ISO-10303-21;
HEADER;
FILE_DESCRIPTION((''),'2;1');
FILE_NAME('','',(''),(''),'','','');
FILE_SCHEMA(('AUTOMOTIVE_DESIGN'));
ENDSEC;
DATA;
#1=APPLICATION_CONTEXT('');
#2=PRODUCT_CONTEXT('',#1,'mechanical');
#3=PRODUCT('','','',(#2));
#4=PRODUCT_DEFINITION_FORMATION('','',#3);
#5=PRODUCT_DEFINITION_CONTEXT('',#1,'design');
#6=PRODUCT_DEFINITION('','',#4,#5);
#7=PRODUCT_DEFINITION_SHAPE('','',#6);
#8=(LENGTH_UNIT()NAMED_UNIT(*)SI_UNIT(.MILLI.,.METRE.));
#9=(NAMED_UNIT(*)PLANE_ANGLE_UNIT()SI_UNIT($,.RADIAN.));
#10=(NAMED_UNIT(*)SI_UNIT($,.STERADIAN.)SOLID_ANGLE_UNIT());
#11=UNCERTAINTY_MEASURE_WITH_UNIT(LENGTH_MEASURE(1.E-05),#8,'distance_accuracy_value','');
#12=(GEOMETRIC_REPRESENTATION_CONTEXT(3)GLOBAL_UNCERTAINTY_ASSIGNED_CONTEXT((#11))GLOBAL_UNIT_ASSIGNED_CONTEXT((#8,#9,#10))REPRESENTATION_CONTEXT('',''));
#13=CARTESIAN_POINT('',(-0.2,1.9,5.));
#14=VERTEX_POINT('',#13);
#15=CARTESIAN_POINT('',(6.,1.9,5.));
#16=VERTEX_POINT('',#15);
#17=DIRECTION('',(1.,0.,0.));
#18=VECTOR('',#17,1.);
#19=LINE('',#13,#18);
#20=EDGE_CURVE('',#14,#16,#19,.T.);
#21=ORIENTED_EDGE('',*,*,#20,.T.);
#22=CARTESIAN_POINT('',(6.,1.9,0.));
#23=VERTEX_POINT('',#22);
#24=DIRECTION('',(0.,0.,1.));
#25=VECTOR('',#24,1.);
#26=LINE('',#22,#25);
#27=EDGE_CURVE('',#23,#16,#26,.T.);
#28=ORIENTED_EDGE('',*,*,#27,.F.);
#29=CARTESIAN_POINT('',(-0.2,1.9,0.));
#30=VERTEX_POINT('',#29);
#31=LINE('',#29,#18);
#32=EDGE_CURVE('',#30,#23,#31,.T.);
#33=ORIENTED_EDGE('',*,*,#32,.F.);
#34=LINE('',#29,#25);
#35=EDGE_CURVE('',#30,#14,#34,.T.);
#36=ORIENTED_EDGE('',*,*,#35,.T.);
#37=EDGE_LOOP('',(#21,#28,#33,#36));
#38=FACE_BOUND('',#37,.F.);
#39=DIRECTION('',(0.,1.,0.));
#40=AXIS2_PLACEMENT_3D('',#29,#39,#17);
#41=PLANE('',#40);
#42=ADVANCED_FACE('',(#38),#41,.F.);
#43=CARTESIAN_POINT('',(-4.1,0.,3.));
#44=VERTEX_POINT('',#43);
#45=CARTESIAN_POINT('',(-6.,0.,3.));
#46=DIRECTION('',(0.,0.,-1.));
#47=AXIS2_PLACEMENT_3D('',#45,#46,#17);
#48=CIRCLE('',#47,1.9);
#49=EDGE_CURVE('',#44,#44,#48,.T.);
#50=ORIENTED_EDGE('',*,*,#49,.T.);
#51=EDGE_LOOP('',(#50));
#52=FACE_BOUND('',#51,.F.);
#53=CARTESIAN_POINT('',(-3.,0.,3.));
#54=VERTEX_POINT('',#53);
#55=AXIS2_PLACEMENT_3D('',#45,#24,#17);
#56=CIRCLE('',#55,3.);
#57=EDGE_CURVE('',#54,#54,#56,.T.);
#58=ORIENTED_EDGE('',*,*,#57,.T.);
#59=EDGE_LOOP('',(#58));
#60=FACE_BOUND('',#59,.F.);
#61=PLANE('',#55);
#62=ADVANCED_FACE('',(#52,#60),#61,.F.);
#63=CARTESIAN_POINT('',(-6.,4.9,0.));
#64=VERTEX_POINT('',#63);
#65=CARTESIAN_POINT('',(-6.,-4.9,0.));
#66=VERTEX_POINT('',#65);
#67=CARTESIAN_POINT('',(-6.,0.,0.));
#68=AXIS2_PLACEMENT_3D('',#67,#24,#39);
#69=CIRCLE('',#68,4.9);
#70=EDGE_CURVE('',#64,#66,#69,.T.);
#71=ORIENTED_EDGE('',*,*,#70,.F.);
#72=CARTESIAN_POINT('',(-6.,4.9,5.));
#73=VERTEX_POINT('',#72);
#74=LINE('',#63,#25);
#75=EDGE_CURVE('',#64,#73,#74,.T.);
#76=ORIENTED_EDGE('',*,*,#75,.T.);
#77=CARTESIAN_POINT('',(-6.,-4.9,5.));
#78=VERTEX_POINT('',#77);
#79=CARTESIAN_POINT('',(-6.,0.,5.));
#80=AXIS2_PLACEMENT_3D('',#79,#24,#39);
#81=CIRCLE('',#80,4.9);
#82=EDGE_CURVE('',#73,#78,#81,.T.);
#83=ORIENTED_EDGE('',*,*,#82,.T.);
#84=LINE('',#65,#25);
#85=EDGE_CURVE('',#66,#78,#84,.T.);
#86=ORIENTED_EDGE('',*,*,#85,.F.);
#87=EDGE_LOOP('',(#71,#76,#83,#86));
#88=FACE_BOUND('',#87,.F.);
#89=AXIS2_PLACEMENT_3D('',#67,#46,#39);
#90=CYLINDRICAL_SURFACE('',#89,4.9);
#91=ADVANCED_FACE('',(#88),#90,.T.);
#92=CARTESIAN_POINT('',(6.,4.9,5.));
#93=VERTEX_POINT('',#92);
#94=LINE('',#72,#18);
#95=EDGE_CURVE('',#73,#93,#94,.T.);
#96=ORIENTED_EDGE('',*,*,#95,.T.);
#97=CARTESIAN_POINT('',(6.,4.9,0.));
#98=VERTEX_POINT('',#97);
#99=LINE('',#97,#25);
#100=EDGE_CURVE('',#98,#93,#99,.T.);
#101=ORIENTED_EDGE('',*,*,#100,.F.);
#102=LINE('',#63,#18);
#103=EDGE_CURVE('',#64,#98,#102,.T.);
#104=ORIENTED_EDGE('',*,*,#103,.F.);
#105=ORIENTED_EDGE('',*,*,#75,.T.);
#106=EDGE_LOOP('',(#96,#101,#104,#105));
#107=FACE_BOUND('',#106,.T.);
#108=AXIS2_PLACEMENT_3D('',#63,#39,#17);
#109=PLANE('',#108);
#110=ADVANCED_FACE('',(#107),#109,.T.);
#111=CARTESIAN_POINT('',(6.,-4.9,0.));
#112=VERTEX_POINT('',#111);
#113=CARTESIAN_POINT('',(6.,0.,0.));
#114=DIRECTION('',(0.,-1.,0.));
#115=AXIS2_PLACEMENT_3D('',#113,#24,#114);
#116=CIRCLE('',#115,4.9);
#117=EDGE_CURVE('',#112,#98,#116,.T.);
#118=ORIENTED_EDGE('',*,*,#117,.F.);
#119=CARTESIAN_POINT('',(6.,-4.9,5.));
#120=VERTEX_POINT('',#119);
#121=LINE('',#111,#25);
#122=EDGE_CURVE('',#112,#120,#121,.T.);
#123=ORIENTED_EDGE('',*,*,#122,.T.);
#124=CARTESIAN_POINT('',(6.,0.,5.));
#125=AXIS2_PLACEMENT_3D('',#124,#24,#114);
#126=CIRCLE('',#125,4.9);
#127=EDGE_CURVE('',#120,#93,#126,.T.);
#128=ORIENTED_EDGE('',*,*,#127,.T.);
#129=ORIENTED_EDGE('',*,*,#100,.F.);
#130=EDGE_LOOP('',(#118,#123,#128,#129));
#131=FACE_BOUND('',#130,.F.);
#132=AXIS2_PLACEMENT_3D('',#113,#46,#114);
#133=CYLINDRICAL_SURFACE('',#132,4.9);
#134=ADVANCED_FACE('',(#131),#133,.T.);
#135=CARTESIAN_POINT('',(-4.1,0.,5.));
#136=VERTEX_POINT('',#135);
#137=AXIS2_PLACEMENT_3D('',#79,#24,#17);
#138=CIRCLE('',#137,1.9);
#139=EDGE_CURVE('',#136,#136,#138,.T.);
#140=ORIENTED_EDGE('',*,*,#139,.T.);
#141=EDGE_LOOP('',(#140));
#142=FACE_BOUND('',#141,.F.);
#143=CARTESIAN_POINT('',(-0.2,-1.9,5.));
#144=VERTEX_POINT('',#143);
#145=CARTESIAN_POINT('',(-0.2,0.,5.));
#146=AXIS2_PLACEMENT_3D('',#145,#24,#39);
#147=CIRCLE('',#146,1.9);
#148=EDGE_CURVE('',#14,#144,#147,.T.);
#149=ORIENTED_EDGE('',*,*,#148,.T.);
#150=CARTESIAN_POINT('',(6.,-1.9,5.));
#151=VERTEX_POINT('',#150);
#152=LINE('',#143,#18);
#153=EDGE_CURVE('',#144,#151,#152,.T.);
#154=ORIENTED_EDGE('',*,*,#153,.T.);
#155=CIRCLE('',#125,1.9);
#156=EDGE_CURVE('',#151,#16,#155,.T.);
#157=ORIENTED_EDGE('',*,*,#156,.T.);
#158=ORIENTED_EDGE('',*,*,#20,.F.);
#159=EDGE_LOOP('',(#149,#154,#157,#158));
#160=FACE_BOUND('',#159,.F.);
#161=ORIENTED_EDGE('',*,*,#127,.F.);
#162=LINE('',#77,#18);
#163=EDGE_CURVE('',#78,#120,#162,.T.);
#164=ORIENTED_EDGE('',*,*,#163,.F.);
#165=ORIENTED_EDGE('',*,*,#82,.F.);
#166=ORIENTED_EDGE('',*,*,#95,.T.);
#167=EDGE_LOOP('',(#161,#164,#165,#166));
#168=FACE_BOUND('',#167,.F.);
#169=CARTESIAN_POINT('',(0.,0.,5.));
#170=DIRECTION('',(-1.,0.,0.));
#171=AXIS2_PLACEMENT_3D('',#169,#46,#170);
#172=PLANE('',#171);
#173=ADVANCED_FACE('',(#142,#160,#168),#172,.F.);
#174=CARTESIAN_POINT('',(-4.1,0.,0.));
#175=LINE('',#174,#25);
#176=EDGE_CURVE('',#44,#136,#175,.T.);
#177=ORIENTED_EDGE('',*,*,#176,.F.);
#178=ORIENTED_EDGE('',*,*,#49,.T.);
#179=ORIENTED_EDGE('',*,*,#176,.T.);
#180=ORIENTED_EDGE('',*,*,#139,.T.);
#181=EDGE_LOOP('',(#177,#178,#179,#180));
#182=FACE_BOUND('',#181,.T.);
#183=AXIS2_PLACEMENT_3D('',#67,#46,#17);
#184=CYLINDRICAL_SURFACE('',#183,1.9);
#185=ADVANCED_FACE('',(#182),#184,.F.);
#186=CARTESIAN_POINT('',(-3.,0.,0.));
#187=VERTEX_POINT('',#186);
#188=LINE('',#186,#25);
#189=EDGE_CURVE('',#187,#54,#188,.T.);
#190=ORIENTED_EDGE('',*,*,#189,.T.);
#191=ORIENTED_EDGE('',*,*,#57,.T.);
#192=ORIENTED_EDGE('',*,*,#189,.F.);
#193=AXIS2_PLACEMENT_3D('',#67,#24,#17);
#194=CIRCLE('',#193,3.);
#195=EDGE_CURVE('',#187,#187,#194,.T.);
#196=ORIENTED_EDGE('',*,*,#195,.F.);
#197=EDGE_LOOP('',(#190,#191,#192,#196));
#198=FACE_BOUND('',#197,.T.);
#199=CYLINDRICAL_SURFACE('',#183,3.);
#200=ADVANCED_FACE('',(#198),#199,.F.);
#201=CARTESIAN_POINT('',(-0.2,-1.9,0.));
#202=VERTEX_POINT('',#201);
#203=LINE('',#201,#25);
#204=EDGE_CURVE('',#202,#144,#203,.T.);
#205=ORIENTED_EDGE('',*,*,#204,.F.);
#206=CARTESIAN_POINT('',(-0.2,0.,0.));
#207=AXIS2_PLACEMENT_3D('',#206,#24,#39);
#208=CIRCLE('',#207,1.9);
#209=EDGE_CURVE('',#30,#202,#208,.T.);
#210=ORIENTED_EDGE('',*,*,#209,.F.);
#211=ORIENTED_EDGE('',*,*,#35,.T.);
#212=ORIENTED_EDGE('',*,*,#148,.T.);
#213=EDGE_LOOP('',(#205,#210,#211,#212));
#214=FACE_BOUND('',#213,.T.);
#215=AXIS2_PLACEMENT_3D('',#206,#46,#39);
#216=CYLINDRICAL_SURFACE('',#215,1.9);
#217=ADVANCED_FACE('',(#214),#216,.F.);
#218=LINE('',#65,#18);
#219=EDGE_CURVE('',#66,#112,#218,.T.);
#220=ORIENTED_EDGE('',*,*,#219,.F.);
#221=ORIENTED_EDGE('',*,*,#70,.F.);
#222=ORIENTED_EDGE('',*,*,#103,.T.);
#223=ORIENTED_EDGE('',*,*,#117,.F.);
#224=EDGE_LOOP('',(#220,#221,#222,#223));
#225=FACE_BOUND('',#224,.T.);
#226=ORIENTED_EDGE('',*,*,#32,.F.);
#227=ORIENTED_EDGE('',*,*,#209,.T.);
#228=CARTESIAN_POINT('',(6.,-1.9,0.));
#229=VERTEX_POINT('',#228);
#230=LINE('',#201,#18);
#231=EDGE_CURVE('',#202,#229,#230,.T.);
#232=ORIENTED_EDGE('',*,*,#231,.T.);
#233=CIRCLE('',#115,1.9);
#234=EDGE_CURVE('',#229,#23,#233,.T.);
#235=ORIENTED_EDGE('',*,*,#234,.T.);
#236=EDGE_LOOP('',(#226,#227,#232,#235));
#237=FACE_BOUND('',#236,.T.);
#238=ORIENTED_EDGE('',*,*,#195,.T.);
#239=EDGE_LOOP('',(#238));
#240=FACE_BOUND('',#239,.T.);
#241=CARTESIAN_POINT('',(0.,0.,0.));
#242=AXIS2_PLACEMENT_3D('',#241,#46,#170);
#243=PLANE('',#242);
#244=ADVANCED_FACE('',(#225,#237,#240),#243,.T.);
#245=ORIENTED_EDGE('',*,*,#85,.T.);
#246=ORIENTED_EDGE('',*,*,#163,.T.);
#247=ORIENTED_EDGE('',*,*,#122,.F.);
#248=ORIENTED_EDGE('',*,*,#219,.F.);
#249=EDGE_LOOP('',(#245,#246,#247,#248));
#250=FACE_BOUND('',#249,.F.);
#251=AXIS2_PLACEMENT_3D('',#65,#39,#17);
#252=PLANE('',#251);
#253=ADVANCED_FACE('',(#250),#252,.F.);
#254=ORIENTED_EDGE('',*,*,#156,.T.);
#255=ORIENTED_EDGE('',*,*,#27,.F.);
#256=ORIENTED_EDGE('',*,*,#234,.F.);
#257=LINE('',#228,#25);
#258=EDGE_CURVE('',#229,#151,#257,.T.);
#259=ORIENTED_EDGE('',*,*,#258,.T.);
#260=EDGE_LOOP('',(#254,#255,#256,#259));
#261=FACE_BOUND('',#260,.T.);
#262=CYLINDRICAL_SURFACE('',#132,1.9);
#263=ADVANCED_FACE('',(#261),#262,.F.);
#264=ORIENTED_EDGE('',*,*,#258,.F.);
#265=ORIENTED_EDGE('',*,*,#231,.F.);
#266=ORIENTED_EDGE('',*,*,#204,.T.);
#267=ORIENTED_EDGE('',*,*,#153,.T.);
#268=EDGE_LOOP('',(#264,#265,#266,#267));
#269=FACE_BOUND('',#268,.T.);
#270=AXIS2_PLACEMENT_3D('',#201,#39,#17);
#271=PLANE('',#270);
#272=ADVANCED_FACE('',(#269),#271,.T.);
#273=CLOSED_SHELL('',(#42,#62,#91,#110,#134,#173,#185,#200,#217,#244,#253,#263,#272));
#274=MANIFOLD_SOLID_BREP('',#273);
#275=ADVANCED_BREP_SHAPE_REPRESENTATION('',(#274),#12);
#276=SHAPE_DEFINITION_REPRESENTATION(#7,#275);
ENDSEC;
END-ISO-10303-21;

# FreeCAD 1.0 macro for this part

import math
import FreeCAD as App
import Part
import Sketcher
from FreeCAD import Vector
Q = App.Units.Quantity

doc = App.newDocument("Part")
body = doc.addObject("PartDesign::Body", "Body")

# Sketch on XY plane
sketch1 = doc.addObject("Sketcher::SketchObject", "Sketch")
body.addObject(sketch1)
sketch1.AttachmentSupport = (doc.XY_Plane, [""])
sketch1.MapMode = "FlatFace"
sketch1.addGeometry(Part.Circle(Vector(-6, 0, 0), Vector(0, 0, 1), 3), False)
sketch1.addConstraint([
    Sketcher.Constraint("PointOnObject", 0, 3, -1),
    Sketcher.Constraint("Diameter", 0, Q("6 mm")),
    Sketcher.Constraint("DistanceX", 0, 3, -1, 1, Q("6 mm")),
])
pad1 = doc.addObject("PartDesign::Pad", "Pad")
body.addObject(pad1)
pad1.Profile = sketch1
pad1.Length = 3
body2 = doc.addObject("PartDesign::Body", "Body001")

# Sketch on XY plane
sketch2 = doc.addObject("Sketcher::SketchObject", "Sketch001")
body2.addObject(sketch2)
sketch2.AttachmentSupport = (doc.getObject("XY_Plane001"), [""])
sketch2.MapMode = "FlatFace"
sketch2.addGeometry([
    Part.LineSegment(Vector(6, 4.9, 0), Vector(-6, 4.9, 0)),  # 0
    Part.ArcOfCircle(Part.Circle(Vector(-6, 0, 0), Vector(0, 0, 1), 4.9), math.radians(90), math.radians(270)),  # 1
    Part.LineSegment(Vector(-6, -4.9, 0), Vector(6, -4.9, 0)),  # 2
    Part.ArcOfCircle(Part.Circle(Vector(6, 0, 0), Vector(0, 0, 1), 4.9), math.radians(-90), math.radians(90)),  # 3
    Part.LineSegment(Vector(-0.2, 1.9, 0), Vector(6, 1.9, 0)),  # 4
    Part.ArcOfCircle(Part.Circle(Vector(6, 0, 0), Vector(0, 0, 1), 1.9), math.radians(-90), math.radians(90)),  # 5
    Part.LineSegment(Vector(6, -1.9, 0), Vector(-0.2, -1.9, 0)),  # 6
    Part.ArcOfCircle(Part.Circle(Vector(-0.2, 0, 0), Vector(0, 0, 1), 1.9), math.radians(90), math.radians(270)),  # 7
    Part.Circle(Vector(-6, 0, 0), Vector(0, 0, 1), 1.9),  # 8
], False)
sketch2.addConstraint([
    Sketcher.Constraint("Tangent", 0, 2, 1, 1),
    Sketcher.Constraint("Tangent", 1, 2, 2, 1),
    Sketcher.Constraint("Tangent", 2, 2, 3, 1),
    Sketcher.Constraint("Tangent", 3, 2, 0, 1),
    Sketcher.Constraint("Tangent", 4, 2, 5, 2),
    Sketcher.Constraint("Tangent", 5, 1, 6, 1),
    Sketcher.Constraint("Tangent", 6, 2, 7, 2),
    Sketcher.Constraint("Tangent", 7, 1, 4, 1),
    Sketcher.Constraint("Horizontal", 0),
    Sketcher.Constraint("Horizontal", 2),
    Sketcher.Constraint("Horizontal", 4),
    Sketcher.Constraint("Horizontal", 6),
    Sketcher.Constraint("Coincident", 5, 3, 3, 3),
    Sketcher.Constraint("Coincident", 8, 3, 1, 3),
    Sketcher.Constraint("Equal", 7, 8),
    Sketcher.Constraint("Symmetric", 1, 3, 3, 3, -1, 1),
    Sketcher.Constraint("Diameter", 8, Q("3.8 mm")),
    Sketcher.Constraint("Radius", 1, Q("4.9 mm")),
    Sketcher.Constraint("DistanceX", 0, 2, 0, 1, Q("12 mm")),
    Sketcher.Constraint("DistanceX", 4, 1, 4, 2, Q("6.2 mm")),
])
pad2 = doc.addObject("PartDesign::Pad", "Pad001")
body2.addObject(pad2)
pad2.Profile = sketch2
pad2.Length = 5
doc.recompute()

boolean = doc.addObject("PartDesign::Boolean", "Boolean")
body2.addObject(boolean)
boolean.Type = "Cut"
boolean.addObjects([body])

doc.recompute()
